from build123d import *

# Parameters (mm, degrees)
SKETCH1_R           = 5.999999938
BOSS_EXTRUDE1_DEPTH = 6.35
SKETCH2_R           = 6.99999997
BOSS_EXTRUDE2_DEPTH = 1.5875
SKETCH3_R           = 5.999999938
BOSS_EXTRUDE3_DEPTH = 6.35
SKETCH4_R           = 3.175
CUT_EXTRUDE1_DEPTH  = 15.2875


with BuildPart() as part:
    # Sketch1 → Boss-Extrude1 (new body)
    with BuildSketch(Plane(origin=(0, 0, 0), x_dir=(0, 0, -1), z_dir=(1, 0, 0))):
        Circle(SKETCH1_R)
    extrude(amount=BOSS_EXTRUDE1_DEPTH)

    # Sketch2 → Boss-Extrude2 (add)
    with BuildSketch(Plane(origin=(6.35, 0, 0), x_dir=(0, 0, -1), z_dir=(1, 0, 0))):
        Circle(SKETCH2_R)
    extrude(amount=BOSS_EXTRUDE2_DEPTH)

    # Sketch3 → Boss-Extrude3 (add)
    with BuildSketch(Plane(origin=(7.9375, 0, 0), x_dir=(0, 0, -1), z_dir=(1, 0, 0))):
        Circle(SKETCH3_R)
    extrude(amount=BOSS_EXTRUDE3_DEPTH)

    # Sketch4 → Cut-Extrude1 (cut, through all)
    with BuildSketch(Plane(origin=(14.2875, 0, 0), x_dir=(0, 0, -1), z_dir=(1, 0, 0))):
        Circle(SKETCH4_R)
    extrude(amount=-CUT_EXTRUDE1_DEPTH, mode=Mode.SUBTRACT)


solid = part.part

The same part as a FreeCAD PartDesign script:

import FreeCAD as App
import Part
import Sketcher

V = App.Vector
Q = App.Units.Quantity

doc = App.newDocument("Part")
body = doc.addObject("PartDesign::Body", "Body")

# Sketch on YZ plane
sketch1 = body.newObject("Sketcher::SketchObject", "Sketch")
sketch1.AttachmentSupport = (doc.getObject("YZ_Plane"), [""])
sketch1.MapMode = "FlatFace"
sketch1.addGeometry(Part.Circle(V(0, 0, 0), V(0, 0, 1), 6), False)
sketch1.addConstraint(Sketcher.Constraint("Coincident", 0, 3, -1, 1))
sketch1.addConstraint(Sketcher.Constraint("Diameter", 0, Q("12 mm")))
pad1 = body.newObject("PartDesign::Pad", "Pad")
pad1.Profile = sketch1
pad1.Length = 6.35

# Sketch on YZ plane
sketch2 = body.newObject("Sketcher::SketchObject", "Sketch001")
sketch2.AttachmentSupport = (doc.getObject("YZ_Plane"), [""])
sketch2.MapMode = "FlatFace"
sketch2.AttachmentOffset = App.Placement(V(0, 0, 6.35), App.Rotation())
sketch2.addGeometry(Part.Circle(V(0, 0, 0), V(0, 0, 1), 7), False)
sketch2.addConstraint(Sketcher.Constraint("Coincident", 0, 3, -1, 1))
sketch2.addConstraint(Sketcher.Constraint("Diameter", 0, Q("14 mm")))
pad2 = body.newObject("PartDesign::Pad", "Pad001")
pad2.Profile = sketch2
pad2.Length = 1.5875

# Sketch on YZ plane
sketch3 = body.newObject("Sketcher::SketchObject", "Sketch002")
sketch3.AttachmentSupport = (doc.getObject("YZ_Plane"), [""])
sketch3.MapMode = "FlatFace"
sketch3.AttachmentOffset = App.Placement(V(0, 0, 7.9375), App.Rotation())
sketch3.addGeometry(Part.Circle(V(0, 0, 0), V(0, 0, 1), 6), False)
sketch3.addConstraint(Sketcher.Constraint("Coincident", 0, 3, -1, 1))
sketch3.addConstraint(Sketcher.Constraint("Diameter", 0, Q("12 mm")))
pad3 = body.newObject("PartDesign::Pad", "Pad002")
pad3.Profile = sketch3
pad3.Length = 6.35

# Sketch on YZ plane
sketch4 = body.newObject("Sketcher::SketchObject", "Sketch003")
sketch4.AttachmentSupport = (doc.getObject("YZ_Plane"), [""])
sketch4.MapMode = "FlatFace"
sketch4.AttachmentOffset = App.Placement(V(0, 0, 14.2875), App.Rotation())
sketch4.addGeometry(Part.Circle(V(0, 0, 0), V(0, 0, 1), 3.2), False)
sketch4.addConstraint(Sketcher.Constraint("Coincident", 0, 3, -1, 1))
sketch4.addConstraint(Sketcher.Constraint("Diameter", 0, Q("6.35 mm")))
pocket1 = body.newObject("PartDesign::Pocket", "Pocket")
pocket1.Profile = sketch4
pocket1.Type = "ThroughAll"

doc.recompute()
